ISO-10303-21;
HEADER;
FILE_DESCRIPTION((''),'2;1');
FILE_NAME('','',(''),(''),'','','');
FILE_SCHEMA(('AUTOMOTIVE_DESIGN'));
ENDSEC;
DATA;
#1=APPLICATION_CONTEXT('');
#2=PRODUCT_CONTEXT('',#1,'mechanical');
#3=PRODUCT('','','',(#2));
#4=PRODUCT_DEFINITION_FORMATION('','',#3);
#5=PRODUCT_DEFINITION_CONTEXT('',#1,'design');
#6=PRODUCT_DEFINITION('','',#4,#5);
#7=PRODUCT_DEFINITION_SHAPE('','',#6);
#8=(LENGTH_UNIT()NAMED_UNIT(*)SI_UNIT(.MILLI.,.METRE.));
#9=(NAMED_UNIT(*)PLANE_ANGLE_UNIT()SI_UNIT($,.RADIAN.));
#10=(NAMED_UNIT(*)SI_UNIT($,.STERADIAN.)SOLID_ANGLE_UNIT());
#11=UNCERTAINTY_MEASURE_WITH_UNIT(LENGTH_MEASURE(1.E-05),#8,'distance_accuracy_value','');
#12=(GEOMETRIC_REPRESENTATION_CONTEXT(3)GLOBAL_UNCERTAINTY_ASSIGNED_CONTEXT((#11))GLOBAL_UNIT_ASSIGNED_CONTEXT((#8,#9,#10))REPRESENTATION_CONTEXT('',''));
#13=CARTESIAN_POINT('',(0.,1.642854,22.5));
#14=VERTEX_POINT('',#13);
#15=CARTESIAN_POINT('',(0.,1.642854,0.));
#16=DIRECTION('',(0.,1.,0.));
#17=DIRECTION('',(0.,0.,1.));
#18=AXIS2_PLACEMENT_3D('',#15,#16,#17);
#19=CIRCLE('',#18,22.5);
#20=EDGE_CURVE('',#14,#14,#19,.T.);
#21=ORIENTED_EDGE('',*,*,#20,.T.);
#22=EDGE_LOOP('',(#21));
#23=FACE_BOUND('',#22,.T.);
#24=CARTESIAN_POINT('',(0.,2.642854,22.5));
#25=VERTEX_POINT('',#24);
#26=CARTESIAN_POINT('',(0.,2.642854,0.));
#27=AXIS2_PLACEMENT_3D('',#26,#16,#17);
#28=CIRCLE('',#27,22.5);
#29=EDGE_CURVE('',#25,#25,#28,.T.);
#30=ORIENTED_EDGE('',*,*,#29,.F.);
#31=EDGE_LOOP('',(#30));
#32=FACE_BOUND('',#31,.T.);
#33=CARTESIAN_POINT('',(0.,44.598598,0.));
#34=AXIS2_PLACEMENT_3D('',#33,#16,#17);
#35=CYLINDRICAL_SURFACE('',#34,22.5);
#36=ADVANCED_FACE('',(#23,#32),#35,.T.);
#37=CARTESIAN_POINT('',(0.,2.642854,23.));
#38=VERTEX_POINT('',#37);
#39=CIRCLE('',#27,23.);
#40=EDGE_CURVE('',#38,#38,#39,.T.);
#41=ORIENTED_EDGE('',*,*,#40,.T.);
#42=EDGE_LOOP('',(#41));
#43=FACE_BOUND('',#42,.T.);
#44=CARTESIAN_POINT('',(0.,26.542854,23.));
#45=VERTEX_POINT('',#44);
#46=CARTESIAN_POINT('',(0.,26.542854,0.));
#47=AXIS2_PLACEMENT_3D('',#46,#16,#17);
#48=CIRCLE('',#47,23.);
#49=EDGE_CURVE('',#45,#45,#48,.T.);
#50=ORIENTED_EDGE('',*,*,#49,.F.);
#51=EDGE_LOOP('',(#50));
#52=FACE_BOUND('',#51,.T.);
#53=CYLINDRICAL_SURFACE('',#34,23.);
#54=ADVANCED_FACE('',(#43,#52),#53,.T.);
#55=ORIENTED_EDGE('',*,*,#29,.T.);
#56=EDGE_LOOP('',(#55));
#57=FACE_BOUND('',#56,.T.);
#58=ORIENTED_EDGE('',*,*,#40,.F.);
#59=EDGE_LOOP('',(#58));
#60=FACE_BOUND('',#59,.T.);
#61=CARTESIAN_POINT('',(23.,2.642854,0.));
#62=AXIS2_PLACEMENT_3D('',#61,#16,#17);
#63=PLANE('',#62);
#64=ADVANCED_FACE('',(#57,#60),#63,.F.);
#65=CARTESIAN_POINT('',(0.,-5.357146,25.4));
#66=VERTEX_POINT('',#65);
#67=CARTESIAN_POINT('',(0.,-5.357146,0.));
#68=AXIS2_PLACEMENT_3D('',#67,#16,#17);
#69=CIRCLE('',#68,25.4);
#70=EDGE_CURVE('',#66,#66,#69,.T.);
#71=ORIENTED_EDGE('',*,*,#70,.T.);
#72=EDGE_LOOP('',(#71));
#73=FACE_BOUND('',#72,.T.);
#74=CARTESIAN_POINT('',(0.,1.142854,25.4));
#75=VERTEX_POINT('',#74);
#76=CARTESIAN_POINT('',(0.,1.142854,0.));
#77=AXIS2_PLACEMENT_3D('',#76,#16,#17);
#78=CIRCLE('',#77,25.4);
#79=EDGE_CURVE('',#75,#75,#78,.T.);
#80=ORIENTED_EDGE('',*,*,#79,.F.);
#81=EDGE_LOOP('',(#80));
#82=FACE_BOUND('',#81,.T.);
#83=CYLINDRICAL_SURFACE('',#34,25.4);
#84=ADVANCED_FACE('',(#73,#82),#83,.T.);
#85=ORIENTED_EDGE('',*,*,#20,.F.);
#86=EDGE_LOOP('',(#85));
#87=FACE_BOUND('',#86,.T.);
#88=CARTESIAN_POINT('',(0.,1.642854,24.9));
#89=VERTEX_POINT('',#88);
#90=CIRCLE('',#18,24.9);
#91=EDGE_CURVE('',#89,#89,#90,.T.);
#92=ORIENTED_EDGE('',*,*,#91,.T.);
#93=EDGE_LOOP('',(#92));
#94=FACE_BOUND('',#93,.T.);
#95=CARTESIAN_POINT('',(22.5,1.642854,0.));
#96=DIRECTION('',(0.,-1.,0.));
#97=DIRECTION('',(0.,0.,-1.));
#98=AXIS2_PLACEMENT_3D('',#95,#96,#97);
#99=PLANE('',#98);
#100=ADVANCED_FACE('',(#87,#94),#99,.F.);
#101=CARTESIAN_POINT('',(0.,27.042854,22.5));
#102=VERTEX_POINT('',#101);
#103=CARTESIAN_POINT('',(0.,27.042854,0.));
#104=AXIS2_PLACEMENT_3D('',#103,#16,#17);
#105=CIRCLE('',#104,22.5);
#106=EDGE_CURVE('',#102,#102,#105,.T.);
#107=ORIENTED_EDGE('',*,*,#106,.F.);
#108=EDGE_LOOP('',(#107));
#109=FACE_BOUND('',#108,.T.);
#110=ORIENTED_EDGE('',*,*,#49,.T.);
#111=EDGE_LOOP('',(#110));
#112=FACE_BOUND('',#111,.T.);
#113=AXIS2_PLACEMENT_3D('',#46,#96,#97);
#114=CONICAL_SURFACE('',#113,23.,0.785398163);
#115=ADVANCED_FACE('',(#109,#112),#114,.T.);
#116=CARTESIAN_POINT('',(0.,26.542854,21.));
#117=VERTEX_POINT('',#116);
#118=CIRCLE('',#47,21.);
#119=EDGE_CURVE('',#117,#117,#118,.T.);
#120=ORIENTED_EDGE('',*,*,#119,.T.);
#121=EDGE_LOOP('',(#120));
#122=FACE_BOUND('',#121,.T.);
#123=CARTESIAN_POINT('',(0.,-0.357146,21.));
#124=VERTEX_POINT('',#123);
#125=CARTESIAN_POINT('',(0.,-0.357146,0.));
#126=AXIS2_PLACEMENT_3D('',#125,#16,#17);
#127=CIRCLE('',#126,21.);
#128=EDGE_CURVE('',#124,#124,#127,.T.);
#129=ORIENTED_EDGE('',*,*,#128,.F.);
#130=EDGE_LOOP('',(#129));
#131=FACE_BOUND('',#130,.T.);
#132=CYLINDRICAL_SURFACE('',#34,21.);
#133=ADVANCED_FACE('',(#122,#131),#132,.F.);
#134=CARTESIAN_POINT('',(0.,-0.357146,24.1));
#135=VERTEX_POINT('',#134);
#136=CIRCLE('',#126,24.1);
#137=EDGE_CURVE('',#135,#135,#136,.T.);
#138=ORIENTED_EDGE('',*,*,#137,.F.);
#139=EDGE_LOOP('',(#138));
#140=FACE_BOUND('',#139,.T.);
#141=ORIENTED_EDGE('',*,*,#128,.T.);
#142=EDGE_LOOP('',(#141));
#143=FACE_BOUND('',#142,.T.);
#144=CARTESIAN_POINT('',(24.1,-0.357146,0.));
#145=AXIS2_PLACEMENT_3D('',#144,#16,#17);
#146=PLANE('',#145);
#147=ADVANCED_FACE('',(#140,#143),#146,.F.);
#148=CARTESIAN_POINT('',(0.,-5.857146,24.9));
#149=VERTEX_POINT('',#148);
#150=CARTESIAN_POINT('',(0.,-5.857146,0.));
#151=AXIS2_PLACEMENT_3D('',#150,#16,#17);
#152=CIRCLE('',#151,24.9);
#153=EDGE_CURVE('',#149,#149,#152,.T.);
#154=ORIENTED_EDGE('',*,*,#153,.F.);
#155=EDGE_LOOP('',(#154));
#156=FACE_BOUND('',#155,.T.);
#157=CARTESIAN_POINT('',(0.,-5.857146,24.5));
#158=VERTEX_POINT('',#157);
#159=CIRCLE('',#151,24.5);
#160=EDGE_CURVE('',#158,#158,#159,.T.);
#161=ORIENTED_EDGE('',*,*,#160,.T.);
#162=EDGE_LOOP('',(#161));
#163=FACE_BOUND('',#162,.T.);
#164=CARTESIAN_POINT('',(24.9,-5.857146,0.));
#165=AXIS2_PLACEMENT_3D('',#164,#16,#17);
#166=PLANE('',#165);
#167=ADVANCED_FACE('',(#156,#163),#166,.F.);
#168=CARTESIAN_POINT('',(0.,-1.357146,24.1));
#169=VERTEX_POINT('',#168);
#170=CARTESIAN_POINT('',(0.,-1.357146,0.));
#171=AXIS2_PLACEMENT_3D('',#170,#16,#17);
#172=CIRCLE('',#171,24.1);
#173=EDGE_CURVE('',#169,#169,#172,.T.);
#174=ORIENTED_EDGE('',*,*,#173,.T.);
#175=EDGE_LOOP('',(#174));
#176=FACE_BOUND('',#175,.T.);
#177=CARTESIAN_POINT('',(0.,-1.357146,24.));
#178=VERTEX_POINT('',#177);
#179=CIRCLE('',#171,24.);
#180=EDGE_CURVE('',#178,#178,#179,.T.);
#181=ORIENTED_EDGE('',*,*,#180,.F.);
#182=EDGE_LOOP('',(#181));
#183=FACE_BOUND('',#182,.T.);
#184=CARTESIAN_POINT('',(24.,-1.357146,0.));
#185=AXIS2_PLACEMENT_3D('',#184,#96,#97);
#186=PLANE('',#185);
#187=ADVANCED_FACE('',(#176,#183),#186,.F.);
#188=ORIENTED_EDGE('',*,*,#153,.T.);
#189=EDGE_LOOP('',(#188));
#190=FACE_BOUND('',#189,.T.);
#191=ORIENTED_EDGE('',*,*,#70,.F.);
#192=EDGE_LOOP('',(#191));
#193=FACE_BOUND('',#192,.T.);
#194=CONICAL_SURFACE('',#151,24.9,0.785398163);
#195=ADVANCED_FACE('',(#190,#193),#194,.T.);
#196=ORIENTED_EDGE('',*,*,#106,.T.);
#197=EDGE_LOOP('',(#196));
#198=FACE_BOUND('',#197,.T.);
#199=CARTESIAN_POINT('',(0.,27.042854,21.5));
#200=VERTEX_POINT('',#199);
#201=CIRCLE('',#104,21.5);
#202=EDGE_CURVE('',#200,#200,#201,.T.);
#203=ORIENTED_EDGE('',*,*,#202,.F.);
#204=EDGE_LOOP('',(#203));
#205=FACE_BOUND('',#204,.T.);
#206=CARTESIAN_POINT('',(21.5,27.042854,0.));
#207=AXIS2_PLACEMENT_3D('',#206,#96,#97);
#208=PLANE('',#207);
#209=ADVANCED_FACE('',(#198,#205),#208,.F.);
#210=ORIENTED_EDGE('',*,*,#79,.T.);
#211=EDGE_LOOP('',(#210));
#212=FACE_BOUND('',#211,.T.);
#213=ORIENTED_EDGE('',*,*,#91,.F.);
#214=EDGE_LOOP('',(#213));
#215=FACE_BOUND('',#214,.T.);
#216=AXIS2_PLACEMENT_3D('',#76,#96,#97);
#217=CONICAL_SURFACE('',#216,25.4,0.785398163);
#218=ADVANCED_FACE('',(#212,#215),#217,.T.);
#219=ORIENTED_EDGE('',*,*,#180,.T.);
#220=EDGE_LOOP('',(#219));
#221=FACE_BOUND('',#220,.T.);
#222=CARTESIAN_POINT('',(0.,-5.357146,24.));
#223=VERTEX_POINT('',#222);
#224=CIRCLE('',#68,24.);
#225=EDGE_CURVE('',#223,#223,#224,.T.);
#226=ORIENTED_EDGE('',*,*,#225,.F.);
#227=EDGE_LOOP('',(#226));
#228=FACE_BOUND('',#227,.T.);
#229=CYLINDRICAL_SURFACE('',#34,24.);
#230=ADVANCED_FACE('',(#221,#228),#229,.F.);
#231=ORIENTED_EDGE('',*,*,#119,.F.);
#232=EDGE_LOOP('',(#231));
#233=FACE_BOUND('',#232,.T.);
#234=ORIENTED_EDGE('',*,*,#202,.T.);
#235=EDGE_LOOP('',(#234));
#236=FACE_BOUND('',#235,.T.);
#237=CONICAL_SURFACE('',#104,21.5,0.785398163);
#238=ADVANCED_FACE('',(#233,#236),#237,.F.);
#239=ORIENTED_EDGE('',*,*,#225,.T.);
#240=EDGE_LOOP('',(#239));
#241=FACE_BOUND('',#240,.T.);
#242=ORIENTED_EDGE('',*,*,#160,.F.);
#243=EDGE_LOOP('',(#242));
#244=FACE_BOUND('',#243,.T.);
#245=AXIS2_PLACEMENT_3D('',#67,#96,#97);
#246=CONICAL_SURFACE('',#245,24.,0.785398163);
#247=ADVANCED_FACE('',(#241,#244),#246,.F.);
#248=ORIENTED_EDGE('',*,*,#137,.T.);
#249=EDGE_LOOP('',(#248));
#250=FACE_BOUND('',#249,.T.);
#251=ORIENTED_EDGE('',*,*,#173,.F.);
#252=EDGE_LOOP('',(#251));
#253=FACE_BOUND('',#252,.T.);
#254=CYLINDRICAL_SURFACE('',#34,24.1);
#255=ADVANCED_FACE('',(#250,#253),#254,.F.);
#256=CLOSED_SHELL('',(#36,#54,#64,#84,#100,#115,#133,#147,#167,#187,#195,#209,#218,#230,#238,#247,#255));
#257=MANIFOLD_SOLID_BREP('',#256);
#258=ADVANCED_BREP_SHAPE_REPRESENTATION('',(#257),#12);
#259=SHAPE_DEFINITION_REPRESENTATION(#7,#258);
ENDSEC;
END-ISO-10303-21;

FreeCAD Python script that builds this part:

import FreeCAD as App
import Part
import Sketcher
from FreeCAD import Vector
Q = App.Units.Quantity


def add_polygon(sketch, points):
    """Adds a closed chain of lines whose ends are joined by coincident constraints."""
    first, n = sketch.GeometryCount, len(points)
    for a, b in zip(points, points[1:] + points[:1]):
        sketch.addGeometry(Part.LineSegment(App.Vector(*a, 0), App.Vector(*b, 0)), False)
    for i in range(n):
        sketch.addConstraint(Sketcher.Constraint("Coincident", first + i, 2, first + (i + 1) % n, 1))

doc = App.newDocument("Part")
body = doc.addObject("PartDesign::Body", "Body")

sketch1 = body.newObject("Sketcher::SketchObject", "Sketch")
sketch1.AttachmentSupport = (doc.getObject("XY_Plane"), [""])
sketch1.MapMode = "FlatFace"
add_polygon(sketch1, [(22.5, 27.042854), (21.5, 27.042854), (21, 26.542854), (21, -0.357146), (24.1, -0.357146), (24.1, -1.357146), (24, -1.357146), (24, -5.357146), (24.5, -5.857146), (24.9, -5.857146), (25.4, -5.357146), (25.4, 1.142854), (24.9, 1.642854), (22.5, 1.642854), (22.5, 2.642854), (23, 2.642854), (23, 26.542854)])
sketch1.addConstraint([
    Sketcher.Constraint("Horizontal", 0),
    Sketcher.Constraint("Vertical", 2),
    Sketcher.Constraint("Horizontal", 3),
    Sketcher.Constraint("Vertical", 4),
    Sketcher.Constraint("Horizontal", 5),
    Sketcher.Constraint("Vertical", 6),
    Sketcher.Constraint("Horizontal", 8),
    Sketcher.Constraint("Vertical", 10),
    Sketcher.Constraint("Horizontal", 12),
    Sketcher.Constraint("Vertical", 13),
    Sketcher.Constraint("Horizontal", 14),
    Sketcher.Constraint("Vertical", 15),
    Sketcher.Constraint("Perpendicular", 1, 7),
    Sketcher.Constraint("Perpendicular", 7, 9),
    Sketcher.Constraint("Perpendicular", 9, 11),
    Sketcher.Constraint("Parallel", 11, 16),
    Sketcher.Constraint("Horizontal", 6, 2, 9, 2),
    Sketcher.Constraint("Horizontal", 1, 2, 15, 2),
    Sketcher.Constraint("Vertical", 8, 2, 11, 2),
    Sketcher.Constraint("Vertical", 13, 2, 16, 2),
    Sketcher.Constraint("Equal", 0, 4),
    Sketcher.Constraint("Equal", 4, 13),
    Sketcher.Constraint("Equal", 1, 7),
    Sketcher.Constraint("Equal", 7, 9),
    Sketcher.Constraint("DistanceX", 0, 2, 0, 1, Q("1 mm")),
    Sketcher.Constraint("DistanceY", 6, 2, 6, 1, Q("4 mm")),
    Sketcher.Constraint("DistanceX", 3, 1, 3, 2, Q("3.1 mm")),
    Sketcher.Constraint("DistanceX", 5, 2, 5, 1, Q("0.1 mm")),
    Sketcher.Constraint("DistanceX", 8, 1, 8, 2, Q("0.4 mm")),
    Sketcher.Constraint("DistanceX", 14, 1, 14, 2, Q("0.5 mm")),
    Sketcher.Constraint("DistanceY", 2, 2, 2, 1, Q("26.9 mm")),
    Sketcher.Constraint("DistanceY", 10, 1, 10, 2, Q("6.5 mm")),
    Sketcher.Constraint("DistanceX", -1, 1, 1, 2, Q("21 mm")),
    Sketcher.Constraint("DistanceY", -1, 1, 0, 2, Q("27.042854 mm")),
])
revolution = body.newObject("PartDesign::Revolution", "Revolution")
revolution.Profile = sketch1
revolution.ReferenceAxis = (sketch1, ["V_Axis"])
revolution.Angle = 360

doc.recompute()
